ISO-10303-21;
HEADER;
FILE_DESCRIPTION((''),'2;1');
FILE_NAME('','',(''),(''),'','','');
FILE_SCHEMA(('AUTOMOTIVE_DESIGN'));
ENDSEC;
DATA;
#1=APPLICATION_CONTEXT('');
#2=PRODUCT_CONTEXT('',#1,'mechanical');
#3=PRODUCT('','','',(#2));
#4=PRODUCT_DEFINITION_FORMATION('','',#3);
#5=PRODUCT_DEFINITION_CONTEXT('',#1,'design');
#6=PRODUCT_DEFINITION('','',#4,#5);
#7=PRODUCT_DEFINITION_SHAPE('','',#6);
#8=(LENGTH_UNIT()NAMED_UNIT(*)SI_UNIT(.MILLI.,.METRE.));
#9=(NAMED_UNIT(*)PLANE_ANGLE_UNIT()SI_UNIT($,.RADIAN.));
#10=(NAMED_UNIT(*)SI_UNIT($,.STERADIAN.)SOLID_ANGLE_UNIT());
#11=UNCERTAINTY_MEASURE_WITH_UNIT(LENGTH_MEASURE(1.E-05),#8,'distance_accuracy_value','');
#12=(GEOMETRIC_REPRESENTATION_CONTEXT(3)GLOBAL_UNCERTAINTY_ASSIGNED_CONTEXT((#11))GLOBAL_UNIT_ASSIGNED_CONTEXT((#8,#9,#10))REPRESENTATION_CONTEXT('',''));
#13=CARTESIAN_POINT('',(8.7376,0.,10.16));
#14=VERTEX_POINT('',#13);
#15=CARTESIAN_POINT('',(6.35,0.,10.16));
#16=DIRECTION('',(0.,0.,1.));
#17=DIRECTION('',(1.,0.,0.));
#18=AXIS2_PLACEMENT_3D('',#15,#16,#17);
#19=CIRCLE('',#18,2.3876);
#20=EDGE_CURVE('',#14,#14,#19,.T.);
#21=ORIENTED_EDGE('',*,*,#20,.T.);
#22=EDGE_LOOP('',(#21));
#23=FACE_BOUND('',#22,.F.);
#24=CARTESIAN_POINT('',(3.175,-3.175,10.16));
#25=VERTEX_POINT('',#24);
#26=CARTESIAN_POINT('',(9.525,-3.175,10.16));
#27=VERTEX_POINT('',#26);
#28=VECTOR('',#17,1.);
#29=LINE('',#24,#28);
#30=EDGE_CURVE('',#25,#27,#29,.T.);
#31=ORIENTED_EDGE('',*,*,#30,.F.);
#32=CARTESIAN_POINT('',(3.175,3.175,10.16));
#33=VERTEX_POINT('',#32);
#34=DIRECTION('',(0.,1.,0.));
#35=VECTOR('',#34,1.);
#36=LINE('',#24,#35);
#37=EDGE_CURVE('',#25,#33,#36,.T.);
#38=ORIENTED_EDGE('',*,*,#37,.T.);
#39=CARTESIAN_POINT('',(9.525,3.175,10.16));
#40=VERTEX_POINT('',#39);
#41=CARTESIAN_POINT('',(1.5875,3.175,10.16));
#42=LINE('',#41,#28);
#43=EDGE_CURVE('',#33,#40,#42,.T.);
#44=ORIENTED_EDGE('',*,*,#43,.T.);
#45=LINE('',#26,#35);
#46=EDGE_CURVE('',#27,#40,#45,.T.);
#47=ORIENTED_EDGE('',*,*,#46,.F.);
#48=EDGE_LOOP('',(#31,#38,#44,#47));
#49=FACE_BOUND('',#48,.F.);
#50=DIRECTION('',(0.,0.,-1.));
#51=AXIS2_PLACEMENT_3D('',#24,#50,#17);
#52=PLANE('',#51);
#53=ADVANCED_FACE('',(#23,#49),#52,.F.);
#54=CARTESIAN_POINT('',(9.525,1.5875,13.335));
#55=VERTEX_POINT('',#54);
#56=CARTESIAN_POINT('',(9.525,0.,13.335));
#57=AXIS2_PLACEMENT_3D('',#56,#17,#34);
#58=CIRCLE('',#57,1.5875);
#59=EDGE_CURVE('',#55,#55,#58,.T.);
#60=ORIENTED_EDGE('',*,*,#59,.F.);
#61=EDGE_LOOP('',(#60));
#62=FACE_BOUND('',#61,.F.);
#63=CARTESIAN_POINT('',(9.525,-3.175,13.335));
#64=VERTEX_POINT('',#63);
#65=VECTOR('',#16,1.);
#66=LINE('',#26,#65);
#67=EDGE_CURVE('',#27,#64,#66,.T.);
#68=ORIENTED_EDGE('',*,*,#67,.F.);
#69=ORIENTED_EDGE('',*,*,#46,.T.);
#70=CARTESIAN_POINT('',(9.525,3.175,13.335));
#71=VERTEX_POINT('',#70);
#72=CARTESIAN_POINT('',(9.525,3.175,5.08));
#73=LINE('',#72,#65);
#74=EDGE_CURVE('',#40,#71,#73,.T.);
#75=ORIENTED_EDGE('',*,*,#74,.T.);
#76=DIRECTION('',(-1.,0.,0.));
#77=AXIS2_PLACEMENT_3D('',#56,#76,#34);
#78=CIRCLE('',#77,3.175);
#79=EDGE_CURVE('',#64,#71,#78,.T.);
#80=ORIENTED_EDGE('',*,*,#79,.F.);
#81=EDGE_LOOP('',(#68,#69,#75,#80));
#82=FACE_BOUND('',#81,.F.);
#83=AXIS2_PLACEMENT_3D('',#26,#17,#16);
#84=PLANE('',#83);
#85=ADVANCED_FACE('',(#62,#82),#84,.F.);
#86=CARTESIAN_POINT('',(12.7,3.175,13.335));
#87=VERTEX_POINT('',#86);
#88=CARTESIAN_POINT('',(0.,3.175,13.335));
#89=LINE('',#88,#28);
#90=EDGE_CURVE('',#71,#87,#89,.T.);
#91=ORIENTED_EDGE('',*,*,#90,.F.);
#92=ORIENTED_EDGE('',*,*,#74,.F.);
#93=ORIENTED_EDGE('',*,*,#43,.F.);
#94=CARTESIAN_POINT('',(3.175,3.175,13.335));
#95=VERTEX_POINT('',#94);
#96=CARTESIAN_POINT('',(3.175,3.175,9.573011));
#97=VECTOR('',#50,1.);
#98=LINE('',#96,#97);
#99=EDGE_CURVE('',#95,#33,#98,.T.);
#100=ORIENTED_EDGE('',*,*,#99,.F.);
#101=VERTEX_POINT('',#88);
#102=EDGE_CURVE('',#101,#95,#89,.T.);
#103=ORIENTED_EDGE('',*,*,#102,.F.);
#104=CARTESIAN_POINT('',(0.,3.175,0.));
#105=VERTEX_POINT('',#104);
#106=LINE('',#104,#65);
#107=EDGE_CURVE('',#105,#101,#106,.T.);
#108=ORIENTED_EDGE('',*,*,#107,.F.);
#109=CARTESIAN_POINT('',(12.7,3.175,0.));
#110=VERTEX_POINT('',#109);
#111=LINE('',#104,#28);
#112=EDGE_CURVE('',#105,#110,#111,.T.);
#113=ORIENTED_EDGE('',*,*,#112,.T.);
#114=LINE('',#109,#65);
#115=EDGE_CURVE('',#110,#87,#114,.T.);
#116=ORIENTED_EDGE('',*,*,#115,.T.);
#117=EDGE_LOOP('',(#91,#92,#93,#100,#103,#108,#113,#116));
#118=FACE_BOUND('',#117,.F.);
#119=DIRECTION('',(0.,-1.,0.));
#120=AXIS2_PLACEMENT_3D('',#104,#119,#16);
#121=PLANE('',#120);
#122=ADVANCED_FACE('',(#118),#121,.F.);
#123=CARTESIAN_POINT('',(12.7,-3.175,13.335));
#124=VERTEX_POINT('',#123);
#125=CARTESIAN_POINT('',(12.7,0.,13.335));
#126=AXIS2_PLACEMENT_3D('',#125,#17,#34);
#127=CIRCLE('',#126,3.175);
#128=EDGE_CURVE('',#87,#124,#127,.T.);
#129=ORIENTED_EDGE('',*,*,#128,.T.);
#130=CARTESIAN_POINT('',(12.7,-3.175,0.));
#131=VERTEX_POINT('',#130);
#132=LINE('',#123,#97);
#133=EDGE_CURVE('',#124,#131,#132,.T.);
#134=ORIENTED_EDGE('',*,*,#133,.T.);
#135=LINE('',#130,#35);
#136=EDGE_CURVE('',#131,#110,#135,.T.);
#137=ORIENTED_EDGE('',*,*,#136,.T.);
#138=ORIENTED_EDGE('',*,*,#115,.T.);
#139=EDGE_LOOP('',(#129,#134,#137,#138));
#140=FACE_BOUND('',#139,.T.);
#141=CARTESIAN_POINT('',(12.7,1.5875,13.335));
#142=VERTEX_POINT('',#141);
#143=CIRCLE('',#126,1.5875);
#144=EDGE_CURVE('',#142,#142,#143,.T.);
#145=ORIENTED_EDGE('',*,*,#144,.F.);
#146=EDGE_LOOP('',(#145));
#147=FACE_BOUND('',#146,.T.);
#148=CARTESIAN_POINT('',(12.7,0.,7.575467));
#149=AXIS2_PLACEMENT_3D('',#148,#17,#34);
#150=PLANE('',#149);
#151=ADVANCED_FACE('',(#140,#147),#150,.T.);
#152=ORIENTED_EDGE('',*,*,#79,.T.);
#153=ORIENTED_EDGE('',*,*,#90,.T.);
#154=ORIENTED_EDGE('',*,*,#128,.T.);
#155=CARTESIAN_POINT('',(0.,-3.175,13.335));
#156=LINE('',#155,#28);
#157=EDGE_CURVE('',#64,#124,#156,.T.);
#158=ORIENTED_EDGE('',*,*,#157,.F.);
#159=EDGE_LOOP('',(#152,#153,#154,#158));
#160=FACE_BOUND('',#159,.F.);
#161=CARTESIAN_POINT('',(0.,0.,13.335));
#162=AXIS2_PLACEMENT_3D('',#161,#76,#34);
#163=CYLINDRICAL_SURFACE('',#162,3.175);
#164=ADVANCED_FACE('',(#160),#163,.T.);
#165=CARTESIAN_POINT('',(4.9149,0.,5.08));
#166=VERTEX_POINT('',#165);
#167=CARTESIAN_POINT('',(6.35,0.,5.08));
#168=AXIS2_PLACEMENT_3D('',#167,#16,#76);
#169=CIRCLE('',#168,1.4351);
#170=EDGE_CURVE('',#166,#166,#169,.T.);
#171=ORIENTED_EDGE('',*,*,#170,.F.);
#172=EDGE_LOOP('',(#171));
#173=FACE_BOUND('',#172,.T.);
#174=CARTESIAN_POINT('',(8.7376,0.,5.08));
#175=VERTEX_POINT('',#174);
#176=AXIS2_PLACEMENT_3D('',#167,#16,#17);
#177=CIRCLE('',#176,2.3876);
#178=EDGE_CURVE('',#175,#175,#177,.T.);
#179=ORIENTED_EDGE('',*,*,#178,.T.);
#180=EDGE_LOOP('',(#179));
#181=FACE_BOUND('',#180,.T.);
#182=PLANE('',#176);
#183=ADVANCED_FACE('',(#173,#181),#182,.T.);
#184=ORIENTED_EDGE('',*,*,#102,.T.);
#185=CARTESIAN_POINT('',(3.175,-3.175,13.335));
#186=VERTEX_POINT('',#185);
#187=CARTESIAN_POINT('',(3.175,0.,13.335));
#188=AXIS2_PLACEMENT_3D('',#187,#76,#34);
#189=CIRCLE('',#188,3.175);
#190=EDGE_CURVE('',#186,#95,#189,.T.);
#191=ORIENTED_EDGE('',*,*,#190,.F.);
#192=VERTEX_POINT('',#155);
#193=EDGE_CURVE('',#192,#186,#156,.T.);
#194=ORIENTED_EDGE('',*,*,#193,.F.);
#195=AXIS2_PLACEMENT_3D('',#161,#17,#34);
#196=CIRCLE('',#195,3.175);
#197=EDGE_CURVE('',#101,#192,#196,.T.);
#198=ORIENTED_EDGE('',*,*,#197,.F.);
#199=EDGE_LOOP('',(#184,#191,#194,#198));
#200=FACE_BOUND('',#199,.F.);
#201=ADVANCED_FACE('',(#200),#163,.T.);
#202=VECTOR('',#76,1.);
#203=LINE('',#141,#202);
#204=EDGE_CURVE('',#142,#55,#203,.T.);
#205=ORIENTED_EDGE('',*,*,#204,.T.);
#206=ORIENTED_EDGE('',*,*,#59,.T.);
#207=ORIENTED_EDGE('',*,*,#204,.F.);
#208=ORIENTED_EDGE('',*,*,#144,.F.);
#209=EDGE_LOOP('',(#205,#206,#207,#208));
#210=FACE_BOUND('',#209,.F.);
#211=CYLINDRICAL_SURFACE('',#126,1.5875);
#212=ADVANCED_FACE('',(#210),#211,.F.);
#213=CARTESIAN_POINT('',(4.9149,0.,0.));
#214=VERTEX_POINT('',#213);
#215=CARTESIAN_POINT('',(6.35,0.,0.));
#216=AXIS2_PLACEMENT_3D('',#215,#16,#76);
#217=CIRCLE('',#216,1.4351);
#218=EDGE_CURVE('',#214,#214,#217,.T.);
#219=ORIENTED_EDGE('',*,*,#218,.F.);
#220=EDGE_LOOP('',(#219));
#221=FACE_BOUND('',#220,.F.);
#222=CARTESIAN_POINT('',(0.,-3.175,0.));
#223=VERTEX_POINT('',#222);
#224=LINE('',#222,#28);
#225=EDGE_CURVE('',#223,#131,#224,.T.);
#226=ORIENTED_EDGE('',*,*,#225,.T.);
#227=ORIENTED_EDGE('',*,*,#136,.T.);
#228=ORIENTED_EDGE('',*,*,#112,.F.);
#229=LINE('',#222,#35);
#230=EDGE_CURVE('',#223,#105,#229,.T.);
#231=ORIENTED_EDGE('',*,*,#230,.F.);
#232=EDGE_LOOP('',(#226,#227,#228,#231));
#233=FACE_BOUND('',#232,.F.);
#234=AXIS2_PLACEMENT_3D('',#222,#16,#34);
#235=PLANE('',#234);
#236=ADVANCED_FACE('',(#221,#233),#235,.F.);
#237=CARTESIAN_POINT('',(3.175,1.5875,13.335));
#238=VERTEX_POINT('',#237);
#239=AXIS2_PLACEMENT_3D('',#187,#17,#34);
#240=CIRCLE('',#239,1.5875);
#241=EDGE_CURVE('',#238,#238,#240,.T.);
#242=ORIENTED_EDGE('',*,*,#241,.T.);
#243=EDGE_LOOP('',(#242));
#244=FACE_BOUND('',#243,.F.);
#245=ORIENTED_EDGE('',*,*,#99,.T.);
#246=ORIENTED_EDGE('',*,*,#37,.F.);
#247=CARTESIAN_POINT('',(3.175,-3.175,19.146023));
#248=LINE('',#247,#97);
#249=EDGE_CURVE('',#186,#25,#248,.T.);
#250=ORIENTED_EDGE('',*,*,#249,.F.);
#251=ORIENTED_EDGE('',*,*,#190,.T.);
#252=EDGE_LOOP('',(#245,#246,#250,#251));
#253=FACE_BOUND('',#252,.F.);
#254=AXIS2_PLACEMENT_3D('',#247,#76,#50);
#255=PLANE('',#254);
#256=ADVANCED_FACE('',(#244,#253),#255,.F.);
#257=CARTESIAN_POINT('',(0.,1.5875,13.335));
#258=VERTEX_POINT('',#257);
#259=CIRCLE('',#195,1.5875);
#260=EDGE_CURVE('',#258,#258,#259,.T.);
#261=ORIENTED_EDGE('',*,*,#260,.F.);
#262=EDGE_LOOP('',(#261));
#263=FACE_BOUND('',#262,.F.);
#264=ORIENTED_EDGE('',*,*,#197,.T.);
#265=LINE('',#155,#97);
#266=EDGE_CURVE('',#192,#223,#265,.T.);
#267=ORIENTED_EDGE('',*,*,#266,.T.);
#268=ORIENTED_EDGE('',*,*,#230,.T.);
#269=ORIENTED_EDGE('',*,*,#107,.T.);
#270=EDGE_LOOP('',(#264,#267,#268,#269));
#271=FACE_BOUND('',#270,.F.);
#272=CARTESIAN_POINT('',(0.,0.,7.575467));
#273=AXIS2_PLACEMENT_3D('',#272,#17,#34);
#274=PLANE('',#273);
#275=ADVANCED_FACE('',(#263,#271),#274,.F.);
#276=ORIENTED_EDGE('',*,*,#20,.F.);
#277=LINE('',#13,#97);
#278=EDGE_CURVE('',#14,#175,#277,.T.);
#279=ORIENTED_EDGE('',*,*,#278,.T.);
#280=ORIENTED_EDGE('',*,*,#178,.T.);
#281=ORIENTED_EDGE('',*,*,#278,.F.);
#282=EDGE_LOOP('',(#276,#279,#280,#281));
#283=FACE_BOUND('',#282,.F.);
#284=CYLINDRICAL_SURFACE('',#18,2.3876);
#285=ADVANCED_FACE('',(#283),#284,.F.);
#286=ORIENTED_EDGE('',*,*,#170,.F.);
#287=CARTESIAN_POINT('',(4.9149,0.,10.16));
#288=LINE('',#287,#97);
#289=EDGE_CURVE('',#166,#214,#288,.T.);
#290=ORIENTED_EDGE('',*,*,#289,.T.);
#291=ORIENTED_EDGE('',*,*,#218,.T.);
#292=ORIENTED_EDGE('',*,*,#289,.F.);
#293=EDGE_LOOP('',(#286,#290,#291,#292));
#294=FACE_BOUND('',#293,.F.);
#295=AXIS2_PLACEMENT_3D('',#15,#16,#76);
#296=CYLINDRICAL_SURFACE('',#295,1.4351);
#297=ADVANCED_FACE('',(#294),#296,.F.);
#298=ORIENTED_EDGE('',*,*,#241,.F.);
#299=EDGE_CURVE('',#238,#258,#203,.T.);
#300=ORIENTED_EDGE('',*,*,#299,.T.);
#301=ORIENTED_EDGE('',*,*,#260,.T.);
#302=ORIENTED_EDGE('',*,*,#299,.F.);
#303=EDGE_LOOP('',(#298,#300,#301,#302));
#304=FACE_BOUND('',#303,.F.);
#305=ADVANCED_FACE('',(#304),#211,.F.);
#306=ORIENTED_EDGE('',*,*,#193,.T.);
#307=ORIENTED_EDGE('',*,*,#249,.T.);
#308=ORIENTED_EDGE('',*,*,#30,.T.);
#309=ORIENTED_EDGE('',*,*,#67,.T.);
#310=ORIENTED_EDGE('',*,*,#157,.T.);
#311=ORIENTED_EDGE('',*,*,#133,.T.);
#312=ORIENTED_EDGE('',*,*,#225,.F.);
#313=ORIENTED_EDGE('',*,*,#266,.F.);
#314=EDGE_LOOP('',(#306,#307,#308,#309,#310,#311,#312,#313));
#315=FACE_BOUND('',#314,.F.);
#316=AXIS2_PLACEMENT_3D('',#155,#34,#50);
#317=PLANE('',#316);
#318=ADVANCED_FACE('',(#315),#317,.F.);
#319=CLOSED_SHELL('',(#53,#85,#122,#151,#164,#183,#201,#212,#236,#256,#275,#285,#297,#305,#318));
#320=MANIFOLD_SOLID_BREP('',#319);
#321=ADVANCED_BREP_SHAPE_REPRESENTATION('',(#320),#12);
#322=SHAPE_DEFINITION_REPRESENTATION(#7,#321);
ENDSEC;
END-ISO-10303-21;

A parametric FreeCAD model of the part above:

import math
import FreeCAD as App
import Part
import Sketcher

V = App.Vector
Q = App.Units.Quantity


def add_polygon(sketch, points):
    """Adds a closed chain of lines whose ends are joined by coincident constraints."""
    first, n = sketch.GeometryCount, len(points)
    for a, b in zip(points, points[1:] + points[:1]):
        sketch.addGeometry(Part.LineSegment(App.Vector(*a, 0), App.Vector(*b, 0)), False)
    for i in range(n):
        sketch.addConstraint(Sketcher.Constraint("Coincident", first + i, 2, first + (i + 1) % n, 1))

doc = App.newDocument("Part")
body = doc.addObject("PartDesign::Body", "Body")

# Sketch on YZ plane
sketch1 = body.newObject("Sketcher::SketchObject", "Sketch")
sketch1.AttachmentSupport = (doc.getObject("YZ_Plane"), [""])
sketch1.MapMode = "FlatFace"
sketch1.addGeometry([
    Part.LineSegment(V(-3.175, 0, 0), V(3.175, 0, 0)),
    Part.LineSegment(V(3.175, 0, 0), V(3.175, 13.335, 0)),
    Part.ArcOfCircle(Part.Circle(V(0, 13.335, 0), V(0, 0, 1), 3.175), math.radians(0), math.radians(180)),
    Part.LineSegment(V(-3.175, 13.335, 0), V(-3.175, 0, 0)),
], False)
sketch1.addConstraint([
    Sketcher.Constraint("Coincident", 0, 2, 1, 1),
    Sketcher.Constraint("Tangent", 1, 2, 2, 1),
    Sketcher.Constraint("Tangent", 2, 2, 3, 1),
    Sketcher.Constraint("Coincident", 3, 2, 0, 1),
    Sketcher.Constraint("Horizontal", 0),
    Sketcher.Constraint("Vertical", 1),
    Sketcher.Constraint("Vertical", 3),
    Sketcher.Constraint("Symmetric", 0, 2, 3, 2, -1, 1),
    Sketcher.Constraint("Radius", 2, Q("0.125 in")),
    Sketcher.Constraint("DistanceY", 1, 1, 1, 2, Q("0.525 in")),
])
pad1 = body.newObject("PartDesign::Pad", "Pad")
pad1.Profile = sketch1
pad1.Length = Q("0.5 in")

# Sketch on YZ plane
sketch2 = body.newObject("Sketcher::SketchObject", "Sketch001")
sketch2.AttachmentSupport = (doc.getObject("YZ_Plane"), [""])
sketch2.MapMode = "FlatFace"
sketch2.AttachmentOffset = App.Placement(V(0, 0, 0.5 * 25.4), App.Rotation())
sketch2.addGeometry(Part.Circle(V(0, 13.335, 0), V(0, 0, 1), 1.5875), False)
sketch2.addConstraint([
    Sketcher.Constraint("PointOnObject", 0, 3, -2),
    Sketcher.Constraint("Diameter", 0, Q("0.125 in")),
    Sketcher.Constraint("DistanceY", -1, 1, 0, 3, Q("0.525 in")),
])
pocket1 = body.newObject("PartDesign::Pocket", "Pocket")
pocket1.Profile = sketch2
pocket1.Length = Q("1 in")

# Sketch on XZ plane
sketch3 = body.newObject("Sketcher::SketchObject", "Sketch002")
sketch3.AttachmentSupport = (doc.getObject("XZ_Plane"), [""])
sketch3.MapMode = "FlatFace"
sketch3.AttachmentOffset = App.Placement(V(0, 0, 0.125 * 25.4), App.Rotation())
add_polygon(sketch3, [(3.175, 10.16), (9.525, 10.16), (9.525, 19.146023), (3.175, 19.146023)])  # lines 0-3
sketch3.addConstraint([
    Sketcher.Constraint("Horizontal", 0),
    Sketcher.Constraint("Vertical", 1),
    Sketcher.Constraint("Horizontal", 2),
    Sketcher.Constraint("Vertical", 3),
    Sketcher.Constraint("DistanceX", 0, 1, 0, 2, Q("0.25 in")),
    Sketcher.Constraint("DistanceY", -1, 1, 0, 2, Q("0.4 in")),
    Sketcher.Constraint("DistanceX", -1, 1, 0, 2, Q("0.375 in")),
    Sketcher.Constraint("DistanceY", 1, 1, 1, 2, Q("8.986023 mm")),
])
pocket2 = body.newObject("PartDesign::Pocket", "Pocket001")
pocket2.Profile = sketch3
pocket2.Length = Q("1 in")

# Sketch on XY plane
sketch4 = body.newObject("Sketcher::SketchObject", "Sketch003")
sketch4.AttachmentSupport = (doc.getObject("XY_Plane"), [""])
sketch4.MapMode = "FlatFace"
sketch4.AttachmentOffset = App.Placement(V(0, 0, 0.4 * 25.4), App.Rotation())
sketch4.addGeometry(Part.Circle(V(6.35, 0, 0), V(0, 0, 1), 1.4351), False)
sketch4.addConstraint([
    Sketcher.Constraint("PointOnObject", 0, 3, -1),
    Sketcher.Constraint("Diameter", 0, Q("0.113 in")),
    Sketcher.Constraint("DistanceX", -1, 1, 0, 3, Q("0.25 in")),
])
pocket3 = body.newObject("PartDesign::Pocket", "Pocket002")
pocket3.Profile = sketch4
pocket3.Length = Q("1 in")

# Sketch on XY plane
sketch5 = body.newObject("Sketcher::SketchObject", "Sketch004")
sketch5.AttachmentSupport = (doc.getObject("XY_Plane"), [""])
sketch5.MapMode = "FlatFace"
sketch5.AttachmentOffset = App.Placement(V(0, 0, 0.4 * 25.4), App.Rotation())
sketch5.addGeometry(Part.Circle(V(6.35, 0, 0), V(0, 0, 1), 2.3876), False)
sketch5.addConstraint([
    Sketcher.Constraint("PointOnObject", 0, 3, -1),
    Sketcher.Constraint("Diameter", 0, Q("0.188 in")),
    Sketcher.Constraint("DistanceX", -1, 1, 0, 3, Q("0.25 in")),
])
pocket4 = body.newObject("PartDesign::Pocket", "Pocket003")
pocket4.Profile = sketch5
pocket4.Length = Q("0.2 in")

doc.recompute()
